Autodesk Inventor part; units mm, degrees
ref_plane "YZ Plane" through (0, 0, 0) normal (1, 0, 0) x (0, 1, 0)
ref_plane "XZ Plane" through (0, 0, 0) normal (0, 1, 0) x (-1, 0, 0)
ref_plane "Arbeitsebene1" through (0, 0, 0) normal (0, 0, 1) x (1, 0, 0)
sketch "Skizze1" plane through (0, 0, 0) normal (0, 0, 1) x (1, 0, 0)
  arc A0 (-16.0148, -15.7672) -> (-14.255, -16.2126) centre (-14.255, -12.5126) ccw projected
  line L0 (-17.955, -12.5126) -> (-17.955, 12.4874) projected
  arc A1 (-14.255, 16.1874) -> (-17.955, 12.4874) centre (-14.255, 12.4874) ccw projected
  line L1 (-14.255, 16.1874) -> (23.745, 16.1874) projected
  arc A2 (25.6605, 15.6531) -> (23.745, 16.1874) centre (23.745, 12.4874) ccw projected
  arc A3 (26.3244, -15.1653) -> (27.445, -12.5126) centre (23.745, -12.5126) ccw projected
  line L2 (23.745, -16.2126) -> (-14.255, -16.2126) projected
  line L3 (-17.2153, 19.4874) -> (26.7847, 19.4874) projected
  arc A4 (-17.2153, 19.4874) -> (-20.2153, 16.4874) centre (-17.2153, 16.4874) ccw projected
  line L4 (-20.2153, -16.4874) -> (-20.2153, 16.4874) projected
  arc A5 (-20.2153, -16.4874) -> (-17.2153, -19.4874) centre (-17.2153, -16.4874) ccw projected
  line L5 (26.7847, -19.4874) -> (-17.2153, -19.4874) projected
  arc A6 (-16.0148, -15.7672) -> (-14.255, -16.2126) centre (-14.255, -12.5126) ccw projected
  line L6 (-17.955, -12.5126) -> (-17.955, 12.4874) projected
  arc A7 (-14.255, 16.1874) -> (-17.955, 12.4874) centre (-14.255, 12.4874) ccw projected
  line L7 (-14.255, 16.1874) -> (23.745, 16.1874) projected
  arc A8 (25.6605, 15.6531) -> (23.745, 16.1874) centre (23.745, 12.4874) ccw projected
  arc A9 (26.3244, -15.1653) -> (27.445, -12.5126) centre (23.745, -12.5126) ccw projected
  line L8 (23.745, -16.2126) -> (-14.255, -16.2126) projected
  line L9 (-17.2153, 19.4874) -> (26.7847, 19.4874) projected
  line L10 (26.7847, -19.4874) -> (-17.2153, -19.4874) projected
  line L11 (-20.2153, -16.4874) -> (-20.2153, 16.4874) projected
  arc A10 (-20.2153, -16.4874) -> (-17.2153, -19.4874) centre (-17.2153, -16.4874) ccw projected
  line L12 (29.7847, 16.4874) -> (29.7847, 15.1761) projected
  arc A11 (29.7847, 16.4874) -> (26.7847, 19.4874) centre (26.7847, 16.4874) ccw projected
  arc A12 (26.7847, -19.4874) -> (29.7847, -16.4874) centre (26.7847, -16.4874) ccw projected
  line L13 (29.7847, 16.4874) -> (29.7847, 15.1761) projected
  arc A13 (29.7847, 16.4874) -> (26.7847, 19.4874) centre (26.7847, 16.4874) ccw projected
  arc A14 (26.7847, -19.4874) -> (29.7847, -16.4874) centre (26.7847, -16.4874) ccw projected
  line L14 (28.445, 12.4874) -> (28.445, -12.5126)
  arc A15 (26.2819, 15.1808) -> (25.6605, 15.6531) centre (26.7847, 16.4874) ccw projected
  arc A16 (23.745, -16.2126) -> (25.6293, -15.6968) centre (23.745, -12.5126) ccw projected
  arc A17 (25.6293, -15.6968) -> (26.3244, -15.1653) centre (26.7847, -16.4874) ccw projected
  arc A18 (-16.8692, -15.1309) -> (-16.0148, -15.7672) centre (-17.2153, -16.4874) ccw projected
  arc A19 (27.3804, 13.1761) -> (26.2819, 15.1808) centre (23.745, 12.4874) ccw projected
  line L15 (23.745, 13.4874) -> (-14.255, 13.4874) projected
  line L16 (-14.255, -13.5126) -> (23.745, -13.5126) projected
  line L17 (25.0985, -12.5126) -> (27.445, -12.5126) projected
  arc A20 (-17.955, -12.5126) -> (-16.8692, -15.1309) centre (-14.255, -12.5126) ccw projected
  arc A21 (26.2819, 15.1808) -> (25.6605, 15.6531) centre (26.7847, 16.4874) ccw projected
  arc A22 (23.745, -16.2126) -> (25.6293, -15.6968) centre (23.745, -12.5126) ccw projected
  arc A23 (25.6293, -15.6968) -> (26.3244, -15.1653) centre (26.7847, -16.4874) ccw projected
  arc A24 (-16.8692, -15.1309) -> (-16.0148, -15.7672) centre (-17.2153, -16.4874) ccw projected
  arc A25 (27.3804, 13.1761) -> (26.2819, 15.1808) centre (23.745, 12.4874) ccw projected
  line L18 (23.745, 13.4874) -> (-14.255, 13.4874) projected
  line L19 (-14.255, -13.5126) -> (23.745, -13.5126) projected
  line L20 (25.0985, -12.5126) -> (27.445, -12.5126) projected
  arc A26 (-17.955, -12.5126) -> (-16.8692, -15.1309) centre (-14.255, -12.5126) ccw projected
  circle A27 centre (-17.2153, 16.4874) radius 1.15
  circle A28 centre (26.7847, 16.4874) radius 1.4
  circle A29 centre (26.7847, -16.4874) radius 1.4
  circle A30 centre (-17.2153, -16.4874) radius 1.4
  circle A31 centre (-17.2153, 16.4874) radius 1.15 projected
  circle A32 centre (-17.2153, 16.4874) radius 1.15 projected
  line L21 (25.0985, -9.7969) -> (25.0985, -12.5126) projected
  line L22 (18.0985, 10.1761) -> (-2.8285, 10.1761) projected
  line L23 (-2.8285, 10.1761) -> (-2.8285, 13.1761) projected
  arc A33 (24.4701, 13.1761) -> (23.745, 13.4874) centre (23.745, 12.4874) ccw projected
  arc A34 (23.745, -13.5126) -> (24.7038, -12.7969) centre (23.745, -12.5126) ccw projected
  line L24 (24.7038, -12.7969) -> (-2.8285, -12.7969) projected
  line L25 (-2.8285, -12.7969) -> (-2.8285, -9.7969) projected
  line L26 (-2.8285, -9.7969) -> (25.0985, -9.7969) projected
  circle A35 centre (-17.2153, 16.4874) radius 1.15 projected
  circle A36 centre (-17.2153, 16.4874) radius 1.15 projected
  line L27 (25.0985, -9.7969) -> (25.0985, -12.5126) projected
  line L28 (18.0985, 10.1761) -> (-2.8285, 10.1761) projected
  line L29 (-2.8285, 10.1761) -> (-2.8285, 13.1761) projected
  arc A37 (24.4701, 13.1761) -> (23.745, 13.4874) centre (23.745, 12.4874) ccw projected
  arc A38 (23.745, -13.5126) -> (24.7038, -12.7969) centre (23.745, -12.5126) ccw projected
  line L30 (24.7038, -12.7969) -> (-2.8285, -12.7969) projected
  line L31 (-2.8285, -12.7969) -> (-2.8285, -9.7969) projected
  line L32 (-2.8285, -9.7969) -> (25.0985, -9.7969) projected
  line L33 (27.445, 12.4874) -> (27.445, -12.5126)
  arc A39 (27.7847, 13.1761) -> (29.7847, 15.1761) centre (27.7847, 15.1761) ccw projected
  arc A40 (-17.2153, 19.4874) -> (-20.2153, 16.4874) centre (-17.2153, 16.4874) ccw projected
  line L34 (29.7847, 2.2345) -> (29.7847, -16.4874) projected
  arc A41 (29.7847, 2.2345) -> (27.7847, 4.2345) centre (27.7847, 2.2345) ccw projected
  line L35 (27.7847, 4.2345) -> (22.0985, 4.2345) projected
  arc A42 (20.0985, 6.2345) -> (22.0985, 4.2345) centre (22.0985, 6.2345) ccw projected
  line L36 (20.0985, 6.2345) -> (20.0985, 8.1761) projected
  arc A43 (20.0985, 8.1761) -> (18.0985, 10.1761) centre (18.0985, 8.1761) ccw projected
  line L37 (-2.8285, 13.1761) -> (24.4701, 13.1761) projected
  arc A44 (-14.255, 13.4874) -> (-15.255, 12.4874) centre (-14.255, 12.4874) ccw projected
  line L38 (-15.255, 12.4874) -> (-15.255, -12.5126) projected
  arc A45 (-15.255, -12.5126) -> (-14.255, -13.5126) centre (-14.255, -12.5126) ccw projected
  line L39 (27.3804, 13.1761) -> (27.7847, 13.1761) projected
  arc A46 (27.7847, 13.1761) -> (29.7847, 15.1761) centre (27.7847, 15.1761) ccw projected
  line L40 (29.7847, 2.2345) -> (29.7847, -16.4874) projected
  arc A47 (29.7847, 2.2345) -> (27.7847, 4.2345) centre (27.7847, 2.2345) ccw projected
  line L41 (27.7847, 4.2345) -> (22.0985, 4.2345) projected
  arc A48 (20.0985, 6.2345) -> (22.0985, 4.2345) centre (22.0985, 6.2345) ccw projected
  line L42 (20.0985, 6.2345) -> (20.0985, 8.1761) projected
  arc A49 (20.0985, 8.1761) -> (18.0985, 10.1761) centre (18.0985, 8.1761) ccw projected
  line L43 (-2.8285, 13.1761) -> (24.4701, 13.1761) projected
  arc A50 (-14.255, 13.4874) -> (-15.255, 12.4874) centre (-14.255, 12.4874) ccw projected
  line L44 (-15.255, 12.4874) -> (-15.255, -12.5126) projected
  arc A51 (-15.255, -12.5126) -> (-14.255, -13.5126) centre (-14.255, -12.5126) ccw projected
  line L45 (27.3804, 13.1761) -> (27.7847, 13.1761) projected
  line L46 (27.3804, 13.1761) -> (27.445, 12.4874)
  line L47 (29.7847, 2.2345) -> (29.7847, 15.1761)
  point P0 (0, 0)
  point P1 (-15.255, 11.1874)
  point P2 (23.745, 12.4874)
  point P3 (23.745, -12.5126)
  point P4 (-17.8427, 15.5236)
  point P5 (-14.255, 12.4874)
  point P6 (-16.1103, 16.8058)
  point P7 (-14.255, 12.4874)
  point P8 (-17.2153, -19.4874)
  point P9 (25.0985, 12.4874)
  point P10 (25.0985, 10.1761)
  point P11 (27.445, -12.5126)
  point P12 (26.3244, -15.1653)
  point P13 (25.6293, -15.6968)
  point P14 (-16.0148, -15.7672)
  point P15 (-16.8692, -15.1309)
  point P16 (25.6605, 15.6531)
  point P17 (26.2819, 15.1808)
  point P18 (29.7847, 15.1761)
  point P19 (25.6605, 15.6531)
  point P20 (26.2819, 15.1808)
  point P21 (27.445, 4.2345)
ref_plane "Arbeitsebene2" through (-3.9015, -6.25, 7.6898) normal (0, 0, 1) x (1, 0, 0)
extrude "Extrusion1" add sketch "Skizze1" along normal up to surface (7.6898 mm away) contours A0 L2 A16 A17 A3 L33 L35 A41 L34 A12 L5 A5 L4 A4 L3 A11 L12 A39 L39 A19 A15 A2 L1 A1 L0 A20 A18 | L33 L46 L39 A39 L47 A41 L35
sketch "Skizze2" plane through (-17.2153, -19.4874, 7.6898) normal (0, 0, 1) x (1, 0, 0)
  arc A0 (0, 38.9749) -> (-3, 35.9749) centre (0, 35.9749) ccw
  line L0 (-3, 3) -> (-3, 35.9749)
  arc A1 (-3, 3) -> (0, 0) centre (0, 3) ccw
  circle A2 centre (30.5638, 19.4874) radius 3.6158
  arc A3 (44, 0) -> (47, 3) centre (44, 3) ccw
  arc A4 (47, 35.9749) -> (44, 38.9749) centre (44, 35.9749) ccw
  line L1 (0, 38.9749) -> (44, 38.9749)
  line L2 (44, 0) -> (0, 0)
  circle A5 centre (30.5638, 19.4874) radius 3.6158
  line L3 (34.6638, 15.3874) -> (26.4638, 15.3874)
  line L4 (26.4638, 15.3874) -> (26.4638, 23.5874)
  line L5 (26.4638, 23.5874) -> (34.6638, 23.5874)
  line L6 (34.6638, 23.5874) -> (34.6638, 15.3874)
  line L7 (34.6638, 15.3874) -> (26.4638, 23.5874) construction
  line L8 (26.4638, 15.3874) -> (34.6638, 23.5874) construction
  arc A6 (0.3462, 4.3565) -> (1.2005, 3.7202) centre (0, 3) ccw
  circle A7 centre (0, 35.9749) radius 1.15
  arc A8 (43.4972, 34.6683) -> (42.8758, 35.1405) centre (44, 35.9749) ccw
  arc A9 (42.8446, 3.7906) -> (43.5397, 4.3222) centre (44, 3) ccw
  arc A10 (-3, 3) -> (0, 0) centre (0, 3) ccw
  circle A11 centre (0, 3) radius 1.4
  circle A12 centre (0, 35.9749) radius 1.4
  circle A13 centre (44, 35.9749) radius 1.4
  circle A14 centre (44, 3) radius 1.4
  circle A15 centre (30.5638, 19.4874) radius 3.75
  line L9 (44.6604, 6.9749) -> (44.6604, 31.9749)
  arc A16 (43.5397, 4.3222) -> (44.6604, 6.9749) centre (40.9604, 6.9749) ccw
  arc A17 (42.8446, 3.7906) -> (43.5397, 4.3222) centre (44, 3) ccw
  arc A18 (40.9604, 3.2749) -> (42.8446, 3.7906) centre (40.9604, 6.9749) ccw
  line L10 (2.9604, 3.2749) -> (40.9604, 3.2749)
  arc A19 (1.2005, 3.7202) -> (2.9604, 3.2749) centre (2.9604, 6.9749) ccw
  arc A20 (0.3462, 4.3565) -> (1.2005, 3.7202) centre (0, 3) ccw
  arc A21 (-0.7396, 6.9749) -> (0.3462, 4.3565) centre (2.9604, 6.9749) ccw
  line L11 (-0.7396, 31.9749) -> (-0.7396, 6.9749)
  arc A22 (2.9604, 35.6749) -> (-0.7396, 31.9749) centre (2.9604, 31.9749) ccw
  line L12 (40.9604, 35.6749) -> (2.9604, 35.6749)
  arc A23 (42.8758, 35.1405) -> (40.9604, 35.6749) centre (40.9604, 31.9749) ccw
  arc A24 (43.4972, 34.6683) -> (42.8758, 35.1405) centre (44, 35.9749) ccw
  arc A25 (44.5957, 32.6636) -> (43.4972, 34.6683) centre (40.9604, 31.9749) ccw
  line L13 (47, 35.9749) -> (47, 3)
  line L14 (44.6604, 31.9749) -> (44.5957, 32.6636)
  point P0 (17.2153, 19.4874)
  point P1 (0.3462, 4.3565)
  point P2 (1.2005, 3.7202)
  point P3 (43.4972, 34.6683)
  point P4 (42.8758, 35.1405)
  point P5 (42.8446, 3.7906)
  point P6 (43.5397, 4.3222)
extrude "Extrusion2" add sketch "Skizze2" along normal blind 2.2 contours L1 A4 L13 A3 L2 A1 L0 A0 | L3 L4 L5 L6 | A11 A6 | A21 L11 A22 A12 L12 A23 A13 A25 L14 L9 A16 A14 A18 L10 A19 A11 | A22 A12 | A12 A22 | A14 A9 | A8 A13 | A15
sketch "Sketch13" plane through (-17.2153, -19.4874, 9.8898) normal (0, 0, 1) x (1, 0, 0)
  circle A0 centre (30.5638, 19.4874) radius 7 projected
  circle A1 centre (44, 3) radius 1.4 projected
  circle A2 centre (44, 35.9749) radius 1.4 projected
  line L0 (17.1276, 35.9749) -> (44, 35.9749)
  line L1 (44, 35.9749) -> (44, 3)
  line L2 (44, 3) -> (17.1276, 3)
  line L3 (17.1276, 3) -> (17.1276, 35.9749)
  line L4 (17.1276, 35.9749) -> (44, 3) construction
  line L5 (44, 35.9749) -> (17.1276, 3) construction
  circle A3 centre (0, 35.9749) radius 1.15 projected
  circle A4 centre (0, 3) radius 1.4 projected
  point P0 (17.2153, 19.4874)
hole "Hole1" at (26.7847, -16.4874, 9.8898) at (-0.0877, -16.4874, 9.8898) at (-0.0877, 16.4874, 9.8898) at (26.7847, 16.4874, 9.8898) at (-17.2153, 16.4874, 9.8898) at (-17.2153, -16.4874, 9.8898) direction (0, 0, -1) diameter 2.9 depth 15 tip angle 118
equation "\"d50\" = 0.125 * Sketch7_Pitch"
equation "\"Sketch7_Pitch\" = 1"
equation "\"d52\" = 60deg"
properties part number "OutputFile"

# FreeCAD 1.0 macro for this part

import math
import FreeCAD as App
import Part
import Sketcher

doc = App.newDocument("Part")
params = doc.addObject("Spreadsheet::Sheet", "Params")
for row, (alias, value) in enumerate([
    ("sketch1_radius", "3 mm"),
    ("sketch1_diameter", "2.3 mm"),
    ("sketch1_radius2", "1.4 mm"),
    ("sketch1_radius3", "3.7 mm"),
    ("sketch1_width", "44 mm"),
    ("pad1_length", "7.6898 mm"),
    ("sketch2_radius", "3 mm"),
    ("sketch2_diameter", "2.3 mm"),
    ("sketch2_width", "44 mm"),
    ("pad2_length", "2.2 mm"),
    ("sketch3_diameter", "2.9 mm"),
    ("hole_diameter", "2.9 mm"),
    ("hole_depth", "15 mm"),
], start=1):
    params.set(f"A{row}", alias)
    params.set(f"B{row}", "=" + value)
    params.setAlias(f"B{row}", alias)

body = doc.addObject("PartDesign::Body", "Body")

sketch1 = body.newObject("Sketcher::SketchObject", "Sketch")
sketch1.AttachmentSupport = (doc.getObject("XY_Plane"), [""])
sketch1.MapMode = "FlatFace"
sketch1.addGeometry(Part.LineSegment(App.Vector(29.8, -16.5, 0), App.Vector(29.8, 16.5, 0)), False)
sketch1.addGeometry(Part.ArcOfCircle(Part.Circle(App.Vector(26.8, 16.5, 0), App.Vector(0, 0, 1), 3), math.radians(0), math.radians(90)), False)
sketch1.addGeometry(Part.LineSegment(App.Vector(26.8, 19.5, 0), App.Vector(-17.2, 19.5, 0)), False)
sketch1.addGeometry(Part.ArcOfCircle(Part.Circle(App.Vector(-17.2, 16.5, 0), App.Vector(0, 0, 1), 3), math.radians(90), math.radians(180)), False)
sketch1.addGeometry(Part.LineSegment(App.Vector(-20.2, 16.5, 0), App.Vector(-20.2, -16.5, 0)), False)
sketch1.addGeometry(Part.ArcOfCircle(Part.Circle(App.Vector(-17.2, -16.5, 0), App.Vector(0, 0, 1), 3), math.radians(180), math.radians(270)), False)
sketch1.addGeometry(Part.LineSegment(App.Vector(-17.2, -19.5, 0), App.Vector(26.8, -19.5, 0)), False)
sketch1.addGeometry(Part.ArcOfCircle(Part.Circle(App.Vector(26.8, -16.5, 0), App.Vector(0, 0, 1), 3), math.radians(-90), math.radians(0)), False)
sketch1.addGeometry(Part.ArcOfCircle(Part.Circle(App.Vector(-14.3, -12.5, 0), App.Vector(0, 0, 1), 3.7), math.radians(-118), math.radians(-90)), False)
sketch1.addGeometry(Part.ArcOfCircle(Part.Circle(App.Vector(-17.2, -16.5, 0), App.Vector(0, 0, 1), 1.4), math.radians(76), math.radians(391)), False)
sketch1.addGeometry(Part.ArcOfCircle(Part.Circle(App.Vector(-14.3, -12.5, 0), App.Vector(0, 0, 1), 3.7), math.radians(180), math.radians(225)), False)
sketch1.addGeometry(Part.LineSegment(App.Vector(-18, -12.5, 0), App.Vector(-18, 12.5, 0)), False)
sketch1.addGeometry(Part.ArcOfCircle(Part.Circle(App.Vector(-14.3, 12.5, 0), App.Vector(0, 0, 1), 3.7), math.radians(90), math.radians(180)), False)
sketch1.addGeometry(Part.LineSegment(App.Vector(-14.3, 16.2, 0), App.Vector(23.7, 16.2, 0)), False)
sketch1.addGeometry(Part.ArcOfCircle(Part.Circle(App.Vector(23.7, 12.5, 0), App.Vector(0, 0, 1), 3.7), math.radians(59), math.radians(90)), False)
sketch1.addGeometry(Part.ArcOfCircle(Part.Circle(App.Vector(26.8, 16.5, 0), App.Vector(0, 0, 1), 1.4), math.radians(-111), math.radians(217)), False)
sketch1.addGeometry(Part.ArcOfCircle(Part.Circle(App.Vector(23.7, 12.5, 0), App.Vector(0, 0, 1), 3.7), math.radians(11), math.radians(47)), False)
sketch1.addGeometry(Part.LineSegment(App.Vector(27.4, 13.2, 0), App.Vector(27.4, 12.5, 0)), False)
sketch1.addGeometry(Part.LineSegment(App.Vector(27.4, 12.5, 0), App.Vector(27.4, -12.5, 0)), False)
sketch1.addGeometry(Part.ArcOfCircle(Part.Circle(App.Vector(23.7, -12.5, 0), App.Vector(0, 0, 1), 3.7), math.radians(-46), math.radians(0)), False)
sketch1.addGeometry(Part.ArcOfCircle(Part.Circle(App.Vector(26.8, -16.5, 0), App.Vector(0, 0, 1), 1.4), math.radians(146), math.radians(469)), False)
sketch1.addGeometry(Part.ArcOfCircle(Part.Circle(App.Vector(23.7, -12.5, 0), App.Vector(0, 0, 1), 3.7), math.radians(-90), math.radians(-59)), False)
sketch1.addGeometry(Part.LineSegment(App.Vector(23.7, -16.2, 0), App.Vector(-14.3, -16.2, 0)), False)
sketch1.addGeometry(Part.Circle(App.Vector(-17.2, 16.5, 0), App.Vector(0, 0, 1), 1.1), False)
sketch1.addConstraint(Sketcher.Constraint("Tangent", 0, 2, 1, 1))
sketch1.addConstraint(Sketcher.Constraint("Tangent", 1, 2, 2, 1))
sketch1.addConstraint(Sketcher.Constraint("Tangent", 2, 2, 3, 1))
sketch1.addConstraint(Sketcher.Constraint("Tangent", 3, 2, 4, 1))
sketch1.addConstraint(Sketcher.Constraint("Tangent", 4, 2, 5, 1))
sketch1.addConstraint(Sketcher.Constraint("Tangent", 5, 2, 6, 1))
sketch1.addConstraint(Sketcher.Constraint("Tangent", 6, 2, 7, 1))
sketch1.addConstraint(Sketcher.Constraint("Tangent", 7, 2, 0, 1))
sketch1.addConstraint(Sketcher.Constraint("Coincident", 8, 1, 9, 2))
sketch1.addConstraint(Sketcher.Constraint("Coincident", 9, 1, 10, 2))
sketch1.addConstraint(Sketcher.Constraint("Tangent", 10, 1, 11, 1))
sketch1.addConstraint(Sketcher.Constraint("Tangent", 11, 2, 12, 2))
sketch1.addConstraint(Sketcher.Constraint("Tangent", 12, 1, 13, 1))
sketch1.addConstraint(Sketcher.Constraint("Tangent", 13, 2, 14, 2))
sketch1.addConstraint(Sketcher.Constraint("Coincident", 14, 1, 15, 2))
sketch1.addConstraint(Sketcher.Constraint("Coincident", 15, 1, 16, 2))
sketch1.addConstraint(Sketcher.Constraint("Coincident", 16, 1, 17, 1))
sketch1.addConstraint(Sketcher.Constraint("Coincident", 17, 2, 18, 1))
sketch1.addConstraint(Sketcher.Constraint("Tangent", 18, 2, 19, 2))
sketch1.addConstraint(Sketcher.Constraint("Coincident", 19, 1, 20, 2))
sketch1.addConstraint(Sketcher.Constraint("Coincident", 20, 1, 21, 2))
sketch1.addConstraint(Sketcher.Constraint("Tangent", 21, 1, 22, 1))
sketch1.addConstraint(Sketcher.Constraint("Tangent", 22, 2, 8, 2))
sketch1.addConstraint(Sketcher.Constraint("Vertical", 0))
sketch1.addConstraint(Sketcher.Constraint("Horizontal", 2))
sketch1.addConstraint(Sketcher.Constraint("Vertical", 4))
sketch1.addConstraint(Sketcher.Constraint("Horizontal", 6))
sketch1.addConstraint(Sketcher.Constraint("Vertical", 11))
sketch1.addConstraint(Sketcher.Constraint("Horizontal", 13))
sketch1.addConstraint(Sketcher.Constraint("Vertical", 18))
sketch1.addConstraint(Sketcher.Constraint("Horizontal", 22))
sketch1.addConstraint(Sketcher.Constraint("Coincident", 9, 3, 5, 3))
sketch1.addConstraint(Sketcher.Constraint("Coincident", 15, 3, 1, 3))
sketch1.addConstraint(Sketcher.Constraint("Coincident", 20, 3, 7, 3))
sketch1.addConstraint(Sketcher.Constraint("Coincident", 21, 3, 19, 3))
sketch1.addConstraint(Sketcher.Constraint("Coincident", 23, 3, 3, 3))
sketch1.addConstraint(Sketcher.Constraint("Equal", 1, 3))
sketch1.addConstraint(Sketcher.Constraint("Equal", 3, 5))
sketch1.addConstraint(Sketcher.Constraint("Equal", 5, 7))
sketch1.addConstraint(Sketcher.Constraint("Equal", 10, 12))
sketch1.addConstraint(Sketcher.Constraint("Equal", 9, 15))
sketch1.addConstraint(Sketcher.Constraint("Equal", 12, 16))
sketch1.addConstraint(Sketcher.Constraint("Equal", 16, 19))
sketch1.addConstraint(Sketcher.Constraint("Equal", 15, 20))
sketch1.addConstraint(Sketcher.Constraint("Equal", 19, 21))
sketch1.addConstraint(Sketcher.Constraint("Horizontal", 12, 3, 16, 3))
sketch1.addConstraint(Sketcher.Constraint("Horizontal", 10, 3, 19, 3))
sketch1.addConstraint(Sketcher.Constraint("Horizontal", 11, 2, 17, 2))
sketch1.addConstraint(Sketcher.Constraint("Vertical", 16, 3, 19, 3))
sketch1.addConstraint(Sketcher.Constraint("Vertical", 21, 3, 13, 2))
sketch1.addConstraint(Sketcher.Constraint("Vertical", 12, 1, 22, 2))
sketch1.addConstraint(Sketcher.Constraint("Radius", 1, 3.0))
sketch1.addConstraint(Sketcher.Constraint("Diameter", 23, 2.3))
sketch1.addConstraint(Sketcher.Constraint("Radius", 9, 1.4))
sketch1.addConstraint(Sketcher.Constraint("Radius", 10, 3.7))
sketch1.addConstraint(Sketcher.Constraint("DistanceX", 2, 2, 2, 1, 44.0))
sketch1.addConstraint(Sketcher.Constraint("DistanceX", 13, 1, 13, 2, 38.0))
sketch1.addConstraint(Sketcher.Constraint("DistanceY", 11, 1, 11, 2, 25.0))
sketch1.addConstraint(Sketcher.Constraint("DistanceY", 10, 3, 3, 3, 29.0))
sketch1.addConstraint(Sketcher.Constraint("DistanceY", 8, 3, 14, 3, 25.0))
sketch1.addConstraint(Sketcher.Constraint("Radius", 8, 3.7014))
sketch1.addConstraint(Sketcher.Constraint("DistanceX", 10, 1, 8, 1, 1.94))
sketch1.addConstraint(Sketcher.Constraint("DistanceX", 14, 1, 16, 1, 1.72))
sketch1.addConstraint(Sketcher.Constraint("DistanceY", 0, 1, 0, 2, 32.9748))
sketch1.addConstraint(Sketcher.Constraint("DistanceX", 10, 3, -1, 1, 14.255))
sketch1.addConstraint(Sketcher.Constraint("DistanceY", 9, 1, -1, 1, 15.131))
sketch1.setExpression("Constraints[51]", "Params.sketch1_radius")
sketch1.setExpression("Constraints[52]", "Params.sketch1_diameter")
sketch1.setExpression("Constraints[53]", "Params.sketch1_radius2")
sketch1.setExpression("Constraints[54]", "Params.sketch1_radius3")
sketch1.setExpression("Constraints[55]", "Params.sketch1_width")
pad1 = body.newObject("PartDesign::Pad", "Pad")
pad1.Profile = sketch1
pad1.setExpression("Length", "Params.pad1_length")

sketch2 = body.newObject("Sketcher::SketchObject", "Sketch001")
sketch2.AttachmentSupport = (doc.getObject("XY_Plane"), [""])
sketch2.MapMode = "FlatFace"
sketch2.AttachmentOffset = App.Placement(App.Vector(0, 0, 7.6898), App.Rotation())
sketch2.addGeometry(Part.LineSegment(App.Vector(26.8, 19.5, 0), App.Vector(-17.2, 19.5, 0)), False)
sketch2.addGeometry(Part.ArcOfCircle(Part.Circle(App.Vector(-17.2, 16.5, 0), App.Vector(0, 0, 1), 3), math.radians(90), math.radians(180)), False)
sketch2.addGeometry(Part.LineSegment(App.Vector(-20.2, 16.5, 0), App.Vector(-20.2, -16.5, 0)), False)
sketch2.addGeometry(Part.ArcOfCircle(Part.Circle(App.Vector(-17.2, -16.5, 0), App.Vector(0, 0, 1), 3), math.radians(180), math.radians(270)), False)
sketch2.addGeometry(Part.LineSegment(App.Vector(-17.2, -19.5, 0), App.Vector(26.8, -19.5, 0)), False)
sketch2.addGeometry(Part.ArcOfCircle(Part.Circle(App.Vector(26.8, -16.5, 0), App.Vector(0, 0, 1), 3), math.radians(-90), math.radians(0)), False)
sketch2.addGeometry(Part.LineSegment(App.Vector(29.8, -16.5, 0), App.Vector(29.8, 16.5, 0)), False)
sketch2.addGeometry(Part.ArcOfCircle(Part.Circle(App.Vector(26.8, 16.5, 0), App.Vector(0, 0, 1), 3), math.radians(0), math.radians(90)), False)
sketch2.addGeometry(Part.Circle(App.Vector(-17.2, 16.5, 0), App.Vector(0, 0, 1), 1.1), False)
sketch2.addGeometry(Part.Circle(App.Vector(13.3, 0, 0), App.Vector(0, 0, 1), 3.6), False)
sketch2.addConstraint(Sketcher.Constraint("Tangent", 0, 2, 1, 1))
sketch2.addConstraint(Sketcher.Constraint("Tangent", 1, 2, 2, 1))
sketch2.addConstraint(Sketcher.Constraint("Tangent", 2, 2, 3, 1))
sketch2.addConstraint(Sketcher.Constraint("Tangent", 3, 2, 4, 1))
sketch2.addConstraint(Sketcher.Constraint("Tangent", 4, 2, 5, 1))
sketch2.addConstraint(Sketcher.Constraint("Tangent", 5, 2, 6, 1))
sketch2.addConstraint(Sketcher.Constraint("Tangent", 6, 2, 7, 1))
sketch2.addConstraint(Sketcher.Constraint("Tangent", 7, 2, 0, 1))
sketch2.addConstraint(Sketcher.Constraint("Horizontal", 0))
sketch2.addConstraint(Sketcher.Constraint("Vertical", 2))
sketch2.addConstraint(Sketcher.Constraint("Horizontal", 4))
sketch2.addConstraint(Sketcher.Constraint("Vertical", 6))
sketch2.addConstraint(Sketcher.Constraint("Coincident", 8, 3, 1, 3))
sketch2.addConstraint(Sketcher.Constraint("Equal", 1, 3))
sketch2.addConstraint(Sketcher.Constraint("Equal", 3, 5))
sketch2.addConstraint(Sketcher.Constraint("Equal", 5, 7))
sketch2.addConstraint(Sketcher.Constraint("PointOnObject", 9, 3, -1))
sketch2.addConstraint(Sketcher.Constraint("Radius", 1, 3.0))
sketch2.addConstraint(Sketcher.Constraint("Diameter", 8, 2.3))
sketch2.addConstraint(Sketcher.Constraint("DistanceX", 0, 2, 0, 1, 44.0))
sketch2.addConstraint(Sketcher.Constraint("Diameter", 9, 7.2316))
sketch2.addConstraint(Sketcher.Constraint("DistanceY", 2, 2, 2, 1, 32.975))
sketch2.addConstraint(Sketcher.Constraint("DistanceX", 1, 3, -1, 1, 17.2153))
sketch2.addConstraint(Sketcher.Constraint("DistanceY", -1, 1, 1, 3, 16.4875))
sketch2.addConstraint(Sketcher.Constraint("DistanceX", -1, 1, 9, 3, 13.3485))
sketch2.setExpression("Constraints[17]", "Params.sketch2_radius")
sketch2.setExpression("Constraints[18]", "Params.sketch2_diameter")
sketch2.setExpression("Constraints[19]", "Params.sketch2_width")
pad2 = body.newObject("PartDesign::Pad", "Pad001")
pad2.Profile = sketch2
pad2.setExpression("Length", "Params.pad2_length")

sketch3 = body.newObject("Sketcher::SketchObject", "Sketch002")
sketch3.AttachmentSupport = (doc.getObject("XY_Plane"), [""])
sketch3.MapMode = "FlatFace"
sketch3.AttachmentOffset = App.Placement(App.Vector(0, 0, 9.8898), App.Rotation())
sketch3.addGeometry(Part.Circle(App.Vector(26.8, -16.5, 0), App.Vector(0, 0, 1), 1.4), False)
sketch3.addGeometry(Part.Circle(App.Vector(-0.1, -16.5, 0), App.Vector(0, 0, 1), 1.4), False)
sketch3.addGeometry(Part.Circle(App.Vector(-0.1, 16.5, 0), App.Vector(0, 0, 1), 1.4), False)
sketch3.addGeometry(Part.Circle(App.Vector(26.8, 16.5, 0), App.Vector(0, 0, 1), 1.4), False)
sketch3.addGeometry(Part.Circle(App.Vector(-17.2, 16.5, 0), App.Vector(0, 0, 1), 1.4), False)
sketch3.addGeometry(Part.Circle(App.Vector(-17.2, -16.5, 0), App.Vector(0, 0, 1), 1.4), False)
sketch3.addConstraint(Sketcher.Constraint("Equal", 0, 1))
sketch3.addConstraint(Sketcher.Constraint("Equal", 1, 2))
sketch3.addConstraint(Sketcher.Constraint("Equal", 2, 3))
sketch3.addConstraint(Sketcher.Constraint("Equal", 3, 4))
sketch3.addConstraint(Sketcher.Constraint("Equal", 4, 5))
sketch3.addConstraint(Sketcher.Constraint("Symmetric", 1, 3, 2, 3, -1))
sketch3.addConstraint(Sketcher.Constraint("Symmetric", 0, 3, 3, 3, -1))
sketch3.addConstraint(Sketcher.Constraint("Symmetric", 4, 3, 5, 3, -1))
sketch3.addConstraint(Sketcher.Constraint("Horizontal", 0, 3, 1, 3))
sketch3.addConstraint(Sketcher.Constraint("Horizontal", 3, 3, 4, 3))
sketch3.addConstraint(Sketcher.Constraint("Diameter", 0, 2.9))
sketch3.addConstraint(Sketcher.Constraint("DistanceX", 4, 3, 3, 3, 44.0))
sketch3.addConstraint(Sketcher.Constraint("DistanceX", -1, 1, 0, 3, 26.7847))
sketch3.addConstraint(Sketcher.Constraint("DistanceY", 0, 3, -1, 1, 16.4874))
sketch3.addConstraint(Sketcher.Constraint("DistanceX", 1, 3, -1, 1, 0.0877))
sketch3.setExpression("Constraints[10]", "Params.sketch3_diameter")
doc.recompute()
hole = body.newObject("PartDesign::Hole", "Hole")
hole.Profile = sketch3
hole.ThreadType = "None"
hole.setExpression("Diameter", "Params.hole_diameter")
hole.DepthType = "Dimension"
hole.setExpression("Depth", "Params.hole_depth")
hole.DrillPoint = "Angled"
hole.DrillPointAngle = 118

doc.recompute()
